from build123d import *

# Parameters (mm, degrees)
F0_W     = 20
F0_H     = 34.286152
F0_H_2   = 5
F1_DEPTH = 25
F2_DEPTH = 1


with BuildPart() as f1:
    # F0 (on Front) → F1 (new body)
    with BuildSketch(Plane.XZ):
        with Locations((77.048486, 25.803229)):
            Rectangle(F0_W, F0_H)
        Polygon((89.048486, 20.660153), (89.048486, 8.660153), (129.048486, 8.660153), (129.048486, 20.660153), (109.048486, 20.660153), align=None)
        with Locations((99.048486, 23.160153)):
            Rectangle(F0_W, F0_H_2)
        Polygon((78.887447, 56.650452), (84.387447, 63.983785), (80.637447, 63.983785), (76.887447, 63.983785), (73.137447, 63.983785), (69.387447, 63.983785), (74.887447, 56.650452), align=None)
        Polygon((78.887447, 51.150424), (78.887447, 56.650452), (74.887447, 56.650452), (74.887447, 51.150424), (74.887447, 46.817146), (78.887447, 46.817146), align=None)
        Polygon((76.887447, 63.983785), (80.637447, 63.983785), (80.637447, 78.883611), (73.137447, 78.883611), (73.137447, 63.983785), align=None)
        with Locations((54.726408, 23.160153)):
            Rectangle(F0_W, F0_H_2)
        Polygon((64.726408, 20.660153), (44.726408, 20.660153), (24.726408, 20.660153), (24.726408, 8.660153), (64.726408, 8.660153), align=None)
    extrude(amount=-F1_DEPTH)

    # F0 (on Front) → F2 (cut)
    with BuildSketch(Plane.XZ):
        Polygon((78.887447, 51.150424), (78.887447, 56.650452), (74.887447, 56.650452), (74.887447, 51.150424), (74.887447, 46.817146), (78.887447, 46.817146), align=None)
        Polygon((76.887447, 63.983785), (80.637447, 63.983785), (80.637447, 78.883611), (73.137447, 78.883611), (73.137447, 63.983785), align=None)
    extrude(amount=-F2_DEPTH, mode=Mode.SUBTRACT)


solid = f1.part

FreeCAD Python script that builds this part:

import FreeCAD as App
import Part
import Sketcher

V = App.Vector

doc = App.newDocument("Part")
params = doc.addObject("Spreadsheet::Sheet", "Params")
for row, (alias, value) in enumerate([
    ("sketch1_width", "20 mm"),
    ("sketch1_width2", "4 mm"),
    ("sketch1_height", "12 mm"),
    ("sketch1_height2", "5 mm"),
    ("sketch1_width3", "7.5 mm"),
    ("pad1_length", "25 mm"),
    ("sketch2_width", "4 mm"),
    ("sketch2_width2", "7.5 mm"),
    ("pocket1_length", "1 mm"),
], start=1):
    params.set(f"A{row}", alias)
    params.set(f"B{row}", "=" + value)
    params.setAlias(f"B{row}", alias)

body = doc.addObject("PartDesign::Body", "Body")
body.AllowCompound = True

sketch1 = doc.addObject("Sketcher::SketchObject", "Sketch")
body.addObject(sketch1)
sketch1.AttachmentSupport = (doc.XZ_Plane, [""])
sketch1.MapMode = "FlatFace"
sketch1.addGeometry([
    Part.LineSegment(V(67, 42.9, 0), V(67, 8.7, 0)),
    Part.LineSegment(V(67, 8.7, 0), V(87, 8.7, 0)),
    Part.LineSegment(V(87, 8.7, 0), V(87, 42.9, 0)),
    Part.LineSegment(V(87, 42.9, 0), V(67, 42.9, 0)),
    Part.LineSegment(V(89, 8.7, 0), V(129, 8.7, 0)),
    Part.LineSegment(V(129, 8.7, 0), V(129, 20.7, 0)),
    Part.LineSegment(V(129, 20.7, 0), V(109, 20.7, 0)),
    Part.LineSegment(V(109, 20.7, 0), V(109, 25.7, 0)),
    Part.LineSegment(V(109, 25.7, 0), V(89, 25.7, 0)),
    Part.LineSegment(V(89, 25.7, 0), V(89, 8.7, 0)),
    Part.LineSegment(V(78.9, 56.7, 0), V(84.4, 64, 0)),
    Part.LineSegment(V(84.4, 64, 0), V(80.6, 64, 0)),
    Part.LineSegment(V(80.6, 64, 0), V(80.6, 78.9, 0)),
    Part.LineSegment(V(80.6, 78.9, 0), V(73.1, 78.9, 0)),
    Part.LineSegment(V(73.1, 78.9, 0), V(73.1, 64, 0)),
    Part.LineSegment(V(73.1, 64, 0), V(69.4, 64, 0)),
    Part.LineSegment(V(69.4, 64, 0), V(74.9, 56.7, 0)),
    Part.LineSegment(V(74.9, 56.7, 0), V(74.9, 46.8, 0)),
    Part.LineSegment(V(74.9, 46.8, 0), V(78.9, 46.8, 0)),
    Part.LineSegment(V(78.9, 46.8, 0), V(78.9, 56.7, 0)),
    Part.LineSegment(V(44.7, 25.7, 0), V(44.7, 20.7, 0)),
    Part.LineSegment(V(44.7, 20.7, 0), V(24.7, 20.7, 0)),
    Part.LineSegment(V(24.7, 20.7, 0), V(24.7, 8.7, 0)),
    Part.LineSegment(V(24.7, 8.7, 0), V(64.7, 8.7, 0)),
    Part.LineSegment(V(64.7, 8.7, 0), V(64.7, 25.7, 0)),
    Part.LineSegment(V(64.7, 25.7, 0), V(44.7, 25.7, 0)),
], False)
sketch1.addConstraint([
    Sketcher.Constraint("Coincident", 0, 2, 1, 1),
    Sketcher.Constraint("Coincident", 1, 2, 2, 1),
    Sketcher.Constraint("Coincident", 2, 2, 3, 1),
    Sketcher.Constraint("Coincident", 3, 2, 0, 1),
    Sketcher.Constraint("Coincident", 4, 2, 5, 1),
    Sketcher.Constraint("Coincident", 5, 2, 6, 1),
    Sketcher.Constraint("Coincident", 6, 2, 7, 1),
    Sketcher.Constraint("Coincident", 7, 2, 8, 1),
    Sketcher.Constraint("Coincident", 8, 2, 9, 1),
    Sketcher.Constraint("Coincident", 9, 2, 4, 1),
    Sketcher.Constraint("Coincident", 10, 2, 11, 1),
    Sketcher.Constraint("Coincident", 11, 2, 12, 1),
    Sketcher.Constraint("Coincident", 12, 2, 13, 1),
    Sketcher.Constraint("Coincident", 13, 2, 14, 1),
    Sketcher.Constraint("Coincident", 14, 2, 15, 1),
    Sketcher.Constraint("Coincident", 15, 2, 16, 1),
    Sketcher.Constraint("Coincident", 16, 2, 17, 1),
    Sketcher.Constraint("Coincident", 17, 2, 18, 1),
    Sketcher.Constraint("Coincident", 18, 2, 19, 1),
    Sketcher.Constraint("Coincident", 19, 2, 10, 1),
    Sketcher.Constraint("Coincident", 20, 2, 21, 1),
    Sketcher.Constraint("Coincident", 21, 2, 22, 1),
    Sketcher.Constraint("Coincident", 22, 2, 23, 1),
    Sketcher.Constraint("Coincident", 23, 2, 24, 1),
    Sketcher.Constraint("Coincident", 24, 2, 25, 1),
    Sketcher.Constraint("Coincident", 25, 2, 20, 1),
    Sketcher.Constraint("Vertical", 0),
    Sketcher.Constraint("Horizontal", 1),
    Sketcher.Constraint("Vertical", 2),
    Sketcher.Constraint("Horizontal", 3),
    Sketcher.Constraint("Horizontal", 4),
    Sketcher.Constraint("Vertical", 5),
    Sketcher.Constraint("Horizontal", 6),
    Sketcher.Constraint("Vertical", 7),
    Sketcher.Constraint("Horizontal", 8),
    Sketcher.Constraint("Vertical", 9),
    Sketcher.Constraint("Horizontal", 11),
    Sketcher.Constraint("Vertical", 12),
    Sketcher.Constraint("Horizontal", 13),
    Sketcher.Constraint("Vertical", 14),
    Sketcher.Constraint("Horizontal", 15),
    Sketcher.Constraint("Vertical", 17),
    Sketcher.Constraint("Horizontal", 18),
    Sketcher.Constraint("Vertical", 19),
    Sketcher.Constraint("Vertical", 20),
    Sketcher.Constraint("Horizontal", 21),
    Sketcher.Constraint("Vertical", 22),
    Sketcher.Constraint("Horizontal", 23),
    Sketcher.Constraint("Vertical", 24),
    Sketcher.Constraint("Horizontal", 25),
    Sketcher.Constraint("Horizontal", 1, 2, 4, 2),
    Sketcher.Constraint("Horizontal", 11, 2, 14, 2),
    Sketcher.Constraint("Horizontal", 16, 2, 19, 2),
    Sketcher.Constraint("Horizontal", 6, 2, 20, 2),
    Sketcher.Constraint("Horizontal", 9, 2, 22, 2),
    Sketcher.Constraint("Horizontal", 8, 2, 24, 2),
    Sketcher.Constraint("Equal", 3, 6),
    Sketcher.Constraint("Equal", 6, 8),
    Sketcher.Constraint("Equal", 11, 15),
    Sketcher.Constraint("Equal", 8, 21),
    Sketcher.Constraint("Equal", 4, 23),
    Sketcher.Constraint("Equal", 10, 16),
    Sketcher.Constraint("DistanceX", 1, 1, 1, 2, 20.0),
    Sketcher.Constraint("DistanceX", 18, 1, 18, 2, 4.0),
    Sketcher.Constraint("DistanceY", 5, 1, 5, 2, 12.0),
    Sketcher.Constraint("DistanceY", 7, 1, 7, 2, 5.0),
    Sketcher.Constraint("DistanceX", 13, 2, 13, 1, 7.5),
    Sketcher.Constraint("DistanceX", 1, 2, 4, 2, 42.0),
    Sketcher.Constraint("DistanceX", 15, 2, 10, 2, 15.0),
    Sketcher.Constraint("DistanceY", 0, 2, 0, 1, 34.286152),
    Sketcher.Constraint("DistanceY", 12, 1, 12, 2, 14.899826),
    Sketcher.Constraint("DistanceY", 17, 2, 17, 1, 9.833306),
    Sketcher.Constraint("DistanceY", -1, 1, 12, 2, 78.883611),
    Sketcher.Constraint("DistanceX", -1, 1, 23, 2, 64.726408),
    Sketcher.Constraint("DistanceX", 10, 2, 2, 2, 2.661039),
    Sketcher.Constraint("DistanceY", 2, 2, 10, 2, 21.03748),
    Sketcher.Constraint("DistanceY", 3, 2, 17, 2, 3.870841),
    Sketcher.Constraint("DistanceX", 20, 2, 17, 2, 30.161039),
])
sketch1.setExpression("Constraints[62]", "Params.sketch1_width")
sketch1.setExpression("Constraints[63]", "Params.sketch1_width2")
sketch1.setExpression("Constraints[64]", "Params.sketch1_height")
sketch1.setExpression("Constraints[65]", "Params.sketch1_height2")
sketch1.setExpression("Constraints[66]", "Params.sketch1_width3")
pad1 = doc.addObject("PartDesign::Pad", "Pad")
body.addObject(pad1)
pad1.Profile = sketch1
pad1.setExpression("Length", "Params.pad1_length")
pad1.Reversed = True

sketch2 = doc.addObject("Sketcher::SketchObject", "Sketch001")
body.addObject(sketch2)
sketch2.AttachmentSupport = (doc.XZ_Plane, [""])
sketch2.MapMode = "FlatFace"
sketch2.addGeometry([
    Part.LineSegment(V(78.9, 56.7, 0), V(74.9, 56.7, 0)),
    Part.LineSegment(V(74.9, 56.7, 0), V(74.9, 46.8, 0)),
    Part.LineSegment(V(74.9, 46.8, 0), V(78.9, 46.8, 0)),
    Part.LineSegment(V(78.9, 46.8, 0), V(78.9, 56.7, 0)),
    Part.LineSegment(V(80.6, 64, 0), V(80.6, 78.9, 0)),
    Part.LineSegment(V(80.6, 78.9, 0), V(73.1, 78.9, 0)),
    Part.LineSegment(V(73.1, 78.9, 0), V(73.1, 64, 0)),
    Part.LineSegment(V(73.1, 64, 0), V(80.6, 64, 0)),
], False)
sketch2.addConstraint([
    Sketcher.Constraint("Coincident", 0, 2, 1, 1),
    Sketcher.Constraint("Coincident", 1, 2, 2, 1),
    Sketcher.Constraint("Coincident", 2, 2, 3, 1),
    Sketcher.Constraint("Coincident", 3, 2, 0, 1),
    Sketcher.Constraint("Coincident", 4, 2, 5, 1),
    Sketcher.Constraint("Coincident", 5, 2, 6, 1),
    Sketcher.Constraint("Coincident", 6, 2, 7, 1),
    Sketcher.Constraint("Coincident", 7, 2, 4, 1),
    Sketcher.Constraint("Horizontal", 0),
    Sketcher.Constraint("Vertical", 1),
    Sketcher.Constraint("Horizontal", 2),
    Sketcher.Constraint("Vertical", 3),
    Sketcher.Constraint("Vertical", 4),
    Sketcher.Constraint("Horizontal", 5),
    Sketcher.Constraint("Vertical", 6),
    Sketcher.Constraint("Horizontal", 7),
    Sketcher.Constraint("DistanceX", 0, 2, 0, 1, 4.0),
    Sketcher.Constraint("DistanceX", 5, 2, 5, 1, 7.5),
    Sketcher.Constraint("DistanceX", 3, 2, 4, 2, 1.75),
    Sketcher.Constraint("DistanceY", 1, 2, 1, 1, 9.833306),
    Sketcher.Constraint("DistanceY", 4, 1, 4, 2, 14.899826),
    Sketcher.Constraint("DistanceY", -1, 1, 4, 2, 78.883611),
    Sketcher.Constraint("DistanceY", 3, 2, 4, 2, 22.233159),
    Sketcher.Constraint("DistanceX", -1, 1, 0, 2, 74.887447),
])
sketch2.setExpression("Constraints[16]", "Params.sketch2_width")
sketch2.setExpression("Constraints[17]", "Params.sketch2_width2")
pocket1 = doc.addObject("PartDesign::Pocket", "Pocket")
body.addObject(pocket1)
pocket1.Profile = sketch2
pocket1.setExpression("Length", "Params.pocket1_length")

doc.recompute()
